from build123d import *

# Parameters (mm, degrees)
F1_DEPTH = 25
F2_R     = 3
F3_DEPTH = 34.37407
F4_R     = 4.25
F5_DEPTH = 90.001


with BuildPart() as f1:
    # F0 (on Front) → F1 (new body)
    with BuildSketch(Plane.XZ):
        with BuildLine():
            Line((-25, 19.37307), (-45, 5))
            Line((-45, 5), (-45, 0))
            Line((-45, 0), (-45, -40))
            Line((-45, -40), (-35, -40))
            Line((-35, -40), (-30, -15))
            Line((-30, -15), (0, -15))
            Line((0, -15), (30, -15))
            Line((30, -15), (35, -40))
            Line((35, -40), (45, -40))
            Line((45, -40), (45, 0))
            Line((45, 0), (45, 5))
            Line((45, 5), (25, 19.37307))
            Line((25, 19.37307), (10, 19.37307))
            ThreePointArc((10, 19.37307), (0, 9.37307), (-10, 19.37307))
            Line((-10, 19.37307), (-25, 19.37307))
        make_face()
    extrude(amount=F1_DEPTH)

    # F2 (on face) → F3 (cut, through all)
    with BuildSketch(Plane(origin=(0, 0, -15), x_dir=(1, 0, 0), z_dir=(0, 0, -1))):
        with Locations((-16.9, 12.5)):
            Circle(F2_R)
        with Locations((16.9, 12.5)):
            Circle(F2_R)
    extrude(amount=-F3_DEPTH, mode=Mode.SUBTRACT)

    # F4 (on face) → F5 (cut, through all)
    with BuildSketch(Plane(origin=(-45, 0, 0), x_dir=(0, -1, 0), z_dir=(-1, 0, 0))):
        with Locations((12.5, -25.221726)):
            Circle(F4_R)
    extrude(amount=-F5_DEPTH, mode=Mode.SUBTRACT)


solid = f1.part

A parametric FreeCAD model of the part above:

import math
import FreeCAD as App
import Part
import Sketcher
from FreeCAD import Vector
Q = App.Units.Quantity

doc = App.newDocument("Part")
body = doc.addObject("PartDesign::Body", "Body")

sketch1 = body.newObject("Sketcher::SketchObject", "Sketch")
sketch1.AttachmentSupport = (doc.getObject("XZ_Plane"), [""])
sketch1.MapMode = "FlatFace"
sketch1.addGeometry([
    Part.LineSegment(Vector(-25, 19, 0), Vector(-45, 5, 0)),
    Part.LineSegment(Vector(-45, 5, 0), Vector(-45, -40, 0)),
    Part.LineSegment(Vector(-45, -40, 0), Vector(-35, -40, 0)),
    Part.LineSegment(Vector(-35, -40, 0), Vector(-30, -15, 0)),
    Part.LineSegment(Vector(-30, -15, 0), Vector(30, -15, 0)),
    Part.LineSegment(Vector(30, -15, 0), Vector(35, -40, 0)),
    Part.LineSegment(Vector(35, -40, 0), Vector(45, -40, 0)),
    Part.LineSegment(Vector(45, -40, 0), Vector(45, 5, 0)),
    Part.LineSegment(Vector(45, 5, 0), Vector(25, 19, 0)),
    Part.LineSegment(Vector(25, 19, 0), Vector(10, 19, 0)),
    Part.ArcOfCircle(Part.Circle(Vector(0, 19, 0), Vector(0, 0, 1), 10), math.radians(180), math.radians(360)),
    Part.LineSegment(Vector(-10, 19, 0), Vector(-25, 19, 0)),
], False)
sketch1.addConstraint([
    Sketcher.Constraint("Coincident", 0, 2, 1, 1),
    Sketcher.Constraint("Coincident", 1, 2, 2, 1),
    Sketcher.Constraint("Coincident", 2, 2, 3, 1),
    Sketcher.Constraint("Coincident", 3, 2, 4, 1),
    Sketcher.Constraint("Coincident", 4, 2, 5, 1),
    Sketcher.Constraint("Coincident", 5, 2, 6, 1),
    Sketcher.Constraint("Coincident", 6, 2, 7, 1),
    Sketcher.Constraint("Coincident", 7, 2, 8, 1),
    Sketcher.Constraint("Coincident", 8, 2, 9, 1),
    Sketcher.Constraint("Coincident", 9, 2, 10, 2),
    Sketcher.Constraint("Coincident", 10, 1, 11, 1),
    Sketcher.Constraint("Coincident", 11, 2, 0, 1),
    Sketcher.Constraint("Vertical", 1),
    Sketcher.Constraint("Horizontal", 2),
    Sketcher.Constraint("Horizontal", 4),
    Sketcher.Constraint("Horizontal", 6),
    Sketcher.Constraint("Vertical", 7),
    Sketcher.Constraint("Horizontal", 9),
    Sketcher.Constraint("Horizontal", 11),
    Sketcher.Constraint("Symmetric", 2, 2, 5, 2, -2),
    Sketcher.Constraint("Symmetric", 0, 2, 7, 2, -2),
    Sketcher.Constraint("Symmetric", 9, 2, 10, 1, -2),
    Sketcher.Constraint("Horizontal", 10, 3, 8, 2),
    Sketcher.Constraint("Equal", 9, 11),
    Sketcher.Constraint("Equal", 3, 5),
    Sketcher.Constraint("Radius", 10, Q("10 mm")),
    Sketcher.Constraint("DistanceX", 2, 1, 2, 2, Q("10 mm")),
    Sketcher.Constraint("DistanceX", 4, 1, 4, 2, Q("60 mm")),
    Sketcher.Constraint("DistanceX", 9, 2, 9, 1, Q("15 mm")),
    Sketcher.Constraint("DistanceY", 1, 2, 1, 1, Q("45 mm")),
    Sketcher.Constraint("DistanceX", 0, 2, -1, 1, Q("45 mm")),
    Sketcher.Constraint("DistanceY", -1, 1, 0, 2, Q("5 mm")),
    Sketcher.Constraint("DistanceY", 3, 2, -1, 1, Q("15 mm")),
    Sketcher.Constraint("Distance", 0, Q("24.628949 mm")),
])
pad1 = body.newObject("PartDesign::Pad", "Pad")
pad1.Profile = sketch1
pad1.Length = 25

sketch2 = body.newObject("Sketcher::SketchObject", "Sketch001")
sketch2.AttachmentSupport = (doc.getObject("XY_Plane"), [""])
sketch2.MapMode = "FlatFace"
sketch2.AttachmentOffset = App.Placement(Vector(0, 0, -15), App.Rotation())
sketch2.addGeometry([
    Part.Circle(Vector(-16.9, -12.5, 0), Vector(0, 0, 1), 3),
    Part.Circle(Vector(16.9, -12.5, 0), Vector(0, 0, 1), 3),
], False)
sketch2.addConstraint([
    Sketcher.Constraint("Equal", 0, 1),
    Sketcher.Constraint("Symmetric", 0, 3, 1, 3, -2),
    Sketcher.Constraint("Diameter", 0, Q("6 mm")),
    Sketcher.Constraint("DistanceX", 0, 3, -1, 1, Q("16.9 mm")),
    Sketcher.Constraint("DistanceY", 0, 3, -1, 1, Q("12.5 mm")),
])
pocket1 = body.newObject("PartDesign::Pocket", "Pocket")
pocket1.Profile = sketch2
pocket1.Type = "ThroughAll"
pocket1.Reversed = True

sketch3 = body.newObject("Sketcher::SketchObject", "Sketch002")
sketch3.AttachmentSupport = (doc.getObject("YZ_Plane"), [""])
sketch3.MapMode = "FlatFace"
sketch3.AttachmentOffset = App.Placement(Vector(0, 0, -45), App.Rotation())
sketch3.addGeometry(Part.Circle(Vector(-12.5, -25.2, 0), Vector(0, 0, 1), 4.2), False)
sketch3.addConstraint([
    Sketcher.Constraint("Diameter", 0, Q("8.5 mm")),
    Sketcher.Constraint("DistanceX", 0, 3, -1, 1, Q("12.5 mm")),
    Sketcher.Constraint("DistanceY", 0, 3, -1, 1, Q("25.221726 mm")),
])
pocket2 = body.newObject("PartDesign::Pocket", "Pocket001")
pocket2.Profile = sketch3
pocket2.Type = "ThroughAll"
pocket2.Reversed = True

doc.recompute()
